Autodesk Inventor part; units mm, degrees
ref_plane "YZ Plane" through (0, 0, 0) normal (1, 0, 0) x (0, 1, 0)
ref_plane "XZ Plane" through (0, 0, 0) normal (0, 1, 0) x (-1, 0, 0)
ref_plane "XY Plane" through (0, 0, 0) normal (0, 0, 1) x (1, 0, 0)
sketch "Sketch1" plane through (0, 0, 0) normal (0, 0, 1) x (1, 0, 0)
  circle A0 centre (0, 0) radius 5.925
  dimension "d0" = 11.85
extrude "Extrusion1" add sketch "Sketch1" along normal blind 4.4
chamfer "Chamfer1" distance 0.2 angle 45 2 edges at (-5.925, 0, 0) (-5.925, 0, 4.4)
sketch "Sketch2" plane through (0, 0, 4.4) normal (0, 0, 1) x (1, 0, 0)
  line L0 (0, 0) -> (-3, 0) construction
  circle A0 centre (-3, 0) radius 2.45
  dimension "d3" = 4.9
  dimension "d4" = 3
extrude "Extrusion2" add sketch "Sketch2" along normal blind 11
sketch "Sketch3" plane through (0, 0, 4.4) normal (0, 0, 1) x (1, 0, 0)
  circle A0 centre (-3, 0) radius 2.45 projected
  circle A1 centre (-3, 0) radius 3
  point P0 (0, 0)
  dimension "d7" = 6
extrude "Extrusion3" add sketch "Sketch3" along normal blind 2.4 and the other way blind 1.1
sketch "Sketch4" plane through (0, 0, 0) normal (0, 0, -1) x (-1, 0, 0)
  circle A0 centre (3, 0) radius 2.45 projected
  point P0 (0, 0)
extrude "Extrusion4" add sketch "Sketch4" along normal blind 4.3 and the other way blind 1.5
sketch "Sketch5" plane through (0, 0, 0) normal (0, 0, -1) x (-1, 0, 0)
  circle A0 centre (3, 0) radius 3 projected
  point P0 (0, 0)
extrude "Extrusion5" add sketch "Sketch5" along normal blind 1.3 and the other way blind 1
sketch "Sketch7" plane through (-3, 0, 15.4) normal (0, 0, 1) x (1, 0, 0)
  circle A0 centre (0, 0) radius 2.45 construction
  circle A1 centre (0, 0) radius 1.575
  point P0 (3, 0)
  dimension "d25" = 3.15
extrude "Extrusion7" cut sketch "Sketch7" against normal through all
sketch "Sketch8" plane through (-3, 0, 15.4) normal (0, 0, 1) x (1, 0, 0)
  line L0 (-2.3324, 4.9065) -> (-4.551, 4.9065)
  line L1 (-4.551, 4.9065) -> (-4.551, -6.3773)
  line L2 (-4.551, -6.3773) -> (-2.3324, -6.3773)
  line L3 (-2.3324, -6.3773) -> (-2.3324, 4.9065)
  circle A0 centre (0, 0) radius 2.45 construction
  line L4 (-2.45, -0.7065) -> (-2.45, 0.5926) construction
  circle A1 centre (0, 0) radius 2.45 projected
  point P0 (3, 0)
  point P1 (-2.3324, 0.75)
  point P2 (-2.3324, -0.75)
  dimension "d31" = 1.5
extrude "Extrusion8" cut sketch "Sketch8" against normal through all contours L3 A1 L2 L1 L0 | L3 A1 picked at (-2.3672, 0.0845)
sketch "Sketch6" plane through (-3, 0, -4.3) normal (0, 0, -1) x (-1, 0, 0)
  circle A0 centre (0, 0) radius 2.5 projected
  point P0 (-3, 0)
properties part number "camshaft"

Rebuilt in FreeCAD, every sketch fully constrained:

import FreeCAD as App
import Part
import Sketcher

V = App.Vector
Q = App.Units.Quantity


def edges_at(feature, points):
    """Names of the edges that pass closest to the given points."""
    edges = feature.Shape.Edges
    near = lambda p: min(range(len(edges)), key=lambda i: edges[i].distToShape(Part.Vertex(*p))[0])
    return sorted({f"Edge{near(p) + 1}" for p in points})

doc = App.newDocument("Part")
body = doc.addObject("PartDesign::Body", "Body")

# Sketch on XY plane
sketch1 = body.newObject("Sketcher::SketchObject", "Sketch")
sketch1.AttachmentSupport = (doc.getObject("XY_Plane"), [""])
sketch1.MapMode = "FlatFace"
sketch1.addGeometry(Part.Circle(V(0, 0, 0), V(0, 0, 1), 6), False)
sketch1.addConstraint([
    Sketcher.Constraint("Coincident", 0, 3, -1, 1),
    Sketcher.Constraint("Diameter", 0, Q("11.85 mm")),
])
pad1 = body.newObject("PartDesign::Pad", "Pad")
pad1.Profile = sketch1
pad1.Length = 4.4
doc.recompute()

chamfer = body.newObject("PartDesign::Chamfer", "Chamfer")
chamfer.Base = (pad1, edges_at(pad1, [(-5.925, 0, 0), (-5.925, 0, 4.4)]))
chamfer.Size = 0.2

# Sketch on XY plane
sketch2 = body.newObject("Sketcher::SketchObject", "Sketch001")
sketch2.AttachmentSupport = (doc.getObject("XY_Plane"), [""])
sketch2.MapMode = "FlatFace"
sketch2.AttachmentOffset = App.Placement(V(0, 0, 4.4), App.Rotation())
sketch2.addGeometry(Part.Circle(V(-3, 0, 0), V(0, 0, 1), 2.5), False)
sketch2.addConstraint([
    Sketcher.Constraint("PointOnObject", 0, 3, -1),
    Sketcher.Constraint("Diameter", 0, Q("4.9 mm")),
    Sketcher.Constraint("DistanceX", 0, 3, -1, 1, Q("3 mm")),
])
pad2 = body.newObject("PartDesign::Pad", "Pad001")
pad2.Profile = sketch2
pad2.Length = 11

# Sketch on XY plane
sketch3 = body.newObject("Sketcher::SketchObject", "Sketch002")
sketch3.AttachmentSupport = (doc.getObject("XY_Plane"), [""])
sketch3.MapMode = "FlatFace"
sketch3.AttachmentOffset = App.Placement(V(0, 0, 4.4), App.Rotation())
sketch3.addGeometry([
    Part.Circle(V(-3, 0, 0), V(0, 0, 1), 3),
    Part.Circle(V(-3, 0, 0), V(0, 0, 1), 2.5),
], False)
sketch3.addConstraint([
    Sketcher.Constraint("Coincident", 1, 3, 0, 3),
    Sketcher.Constraint("PointOnObject", 0, 3, -1),
    Sketcher.Constraint("Diameter", 0, Q("6 mm")),
    Sketcher.Constraint("Diameter", 1, Q("4.9 mm")),
    Sketcher.Constraint("DistanceX", 0, 3, -1, 1, Q("3 mm")),
])
pad3 = body.newObject("PartDesign::Pad", "Pad002")
pad3.Profile = sketch3
pad3.Type = "TwoLengths"
pad3.Length = 2.4
pad3.Length2 = 1.1

# Sketch on XY plane
sketch4 = body.newObject("Sketcher::SketchObject", "Sketch003")
sketch4.AttachmentSupport = (doc.getObject("XY_Plane"), [""])
sketch4.MapMode = "FlatFace"
sketch4.addGeometry(Part.Circle(V(-3, 0, 0), V(0, 0, 1), 2.5), False)
sketch4.addConstraint([
    Sketcher.Constraint("PointOnObject", 0, 3, -1),
    Sketcher.Constraint("Diameter", 0, Q("4.9 mm")),
    Sketcher.Constraint("DistanceX", 0, 3, -1, 1, Q("3 mm")),
])
pad4 = body.newObject("PartDesign::Pad", "Pad003")
pad4.Profile = sketch4
pad4.Type = "TwoLengths"
pad4.Length = 4.3
pad4.Length2 = 1.5
pad4.Reversed = True

# Sketch on XY plane
sketch5 = body.newObject("Sketcher::SketchObject", "Sketch004")
sketch5.AttachmentSupport = (doc.getObject("XY_Plane"), [""])
sketch5.MapMode = "FlatFace"
sketch5.addGeometry(Part.Circle(V(-3, 0, 0), V(0, 0, 1), 3), False)
sketch5.addConstraint([
    Sketcher.Constraint("PointOnObject", 0, 3, -1),
    Sketcher.Constraint("Diameter", 0, Q("6 mm")),
    Sketcher.Constraint("DistanceX", 0, 3, -1, 1, Q("3 mm")),
])
pad5 = body.newObject("PartDesign::Pad", "Pad004")
pad5.Profile = sketch5
pad5.Type = "TwoLengths"
pad5.Length = 1.3
pad5.Length2 = 1
pad5.Reversed = True

# Sketch on XY plane
sketch6 = body.newObject("Sketcher::SketchObject", "Sketch005")
sketch6.AttachmentSupport = (doc.getObject("XY_Plane"), [""])
sketch6.MapMode = "FlatFace"
sketch6.AttachmentOffset = App.Placement(V(0, 0, 15.4), App.Rotation())
sketch6.addGeometry(Part.Circle(V(-3, 0, 0), V(0, 0, 1), 1.6), False)
sketch6.addConstraint([
    Sketcher.Constraint("PointOnObject", 0, 3, -1),
    Sketcher.Constraint("Diameter", 0, Q("3.15 mm")),
    Sketcher.Constraint("DistanceX", 0, 3, -1, 1, Q("3 mm")),
])
pocket1 = body.newObject("PartDesign::Pocket", "Pocket")
pocket1.Profile = sketch6
pocket1.Type = "ThroughAll"

# Sketch on XY plane
sketch7 = body.newObject("Sketcher::SketchObject", "Sketch006")
sketch7.AttachmentSupport = (doc.getObject("XY_Plane"), [""])
sketch7.MapMode = "FlatFace"
sketch7.AttachmentOffset = App.Placement(V(0, 0, 15.4), App.Rotation())
sketch7.addGeometry([
    Part.LineSegment(V(-5.3, 4.9, 0), V(-7.6, 4.9, 0)),
    Part.LineSegment(V(-7.6, 4.9, 0), V(-7.6, -6.4, 0)),
    Part.LineSegment(V(-7.6, -6.4, 0), V(-5.3, -6.4, 0)),
    Part.LineSegment(V(-5.3, -6.4, 0), V(-5.3, 4.9, 0)),
], False)
sketch7.addConstraint([
    Sketcher.Constraint("Coincident", 0, 2, 1, 1),
    Sketcher.Constraint("Coincident", 1, 2, 2, 1),
    Sketcher.Constraint("Coincident", 2, 2, 3, 1),
    Sketcher.Constraint("Coincident", 3, 2, 0, 1),
    Sketcher.Constraint("Horizontal", 0),
    Sketcher.Constraint("Vertical", 1),
    Sketcher.Constraint("Horizontal", 2),
    Sketcher.Constraint("Vertical", 3),
    Sketcher.Constraint("DistanceX", 0, 2, 0, 1, Q("2.2186 mm")),
    Sketcher.Constraint("DistanceY", 1, 2, 1, 1, Q("11.2838 mm")),
    Sketcher.Constraint("DistanceX", 0, 2, -1, 1, Q("7.551 mm")),
    Sketcher.Constraint("DistanceY", -1, 1, 0, 2, Q("4.9065 mm")),
])
pocket2 = body.newObject("PartDesign::Pocket", "Pocket001")
pocket2.Profile = sketch7
pocket2.Type = "ThroughAll"

doc.recompute()
